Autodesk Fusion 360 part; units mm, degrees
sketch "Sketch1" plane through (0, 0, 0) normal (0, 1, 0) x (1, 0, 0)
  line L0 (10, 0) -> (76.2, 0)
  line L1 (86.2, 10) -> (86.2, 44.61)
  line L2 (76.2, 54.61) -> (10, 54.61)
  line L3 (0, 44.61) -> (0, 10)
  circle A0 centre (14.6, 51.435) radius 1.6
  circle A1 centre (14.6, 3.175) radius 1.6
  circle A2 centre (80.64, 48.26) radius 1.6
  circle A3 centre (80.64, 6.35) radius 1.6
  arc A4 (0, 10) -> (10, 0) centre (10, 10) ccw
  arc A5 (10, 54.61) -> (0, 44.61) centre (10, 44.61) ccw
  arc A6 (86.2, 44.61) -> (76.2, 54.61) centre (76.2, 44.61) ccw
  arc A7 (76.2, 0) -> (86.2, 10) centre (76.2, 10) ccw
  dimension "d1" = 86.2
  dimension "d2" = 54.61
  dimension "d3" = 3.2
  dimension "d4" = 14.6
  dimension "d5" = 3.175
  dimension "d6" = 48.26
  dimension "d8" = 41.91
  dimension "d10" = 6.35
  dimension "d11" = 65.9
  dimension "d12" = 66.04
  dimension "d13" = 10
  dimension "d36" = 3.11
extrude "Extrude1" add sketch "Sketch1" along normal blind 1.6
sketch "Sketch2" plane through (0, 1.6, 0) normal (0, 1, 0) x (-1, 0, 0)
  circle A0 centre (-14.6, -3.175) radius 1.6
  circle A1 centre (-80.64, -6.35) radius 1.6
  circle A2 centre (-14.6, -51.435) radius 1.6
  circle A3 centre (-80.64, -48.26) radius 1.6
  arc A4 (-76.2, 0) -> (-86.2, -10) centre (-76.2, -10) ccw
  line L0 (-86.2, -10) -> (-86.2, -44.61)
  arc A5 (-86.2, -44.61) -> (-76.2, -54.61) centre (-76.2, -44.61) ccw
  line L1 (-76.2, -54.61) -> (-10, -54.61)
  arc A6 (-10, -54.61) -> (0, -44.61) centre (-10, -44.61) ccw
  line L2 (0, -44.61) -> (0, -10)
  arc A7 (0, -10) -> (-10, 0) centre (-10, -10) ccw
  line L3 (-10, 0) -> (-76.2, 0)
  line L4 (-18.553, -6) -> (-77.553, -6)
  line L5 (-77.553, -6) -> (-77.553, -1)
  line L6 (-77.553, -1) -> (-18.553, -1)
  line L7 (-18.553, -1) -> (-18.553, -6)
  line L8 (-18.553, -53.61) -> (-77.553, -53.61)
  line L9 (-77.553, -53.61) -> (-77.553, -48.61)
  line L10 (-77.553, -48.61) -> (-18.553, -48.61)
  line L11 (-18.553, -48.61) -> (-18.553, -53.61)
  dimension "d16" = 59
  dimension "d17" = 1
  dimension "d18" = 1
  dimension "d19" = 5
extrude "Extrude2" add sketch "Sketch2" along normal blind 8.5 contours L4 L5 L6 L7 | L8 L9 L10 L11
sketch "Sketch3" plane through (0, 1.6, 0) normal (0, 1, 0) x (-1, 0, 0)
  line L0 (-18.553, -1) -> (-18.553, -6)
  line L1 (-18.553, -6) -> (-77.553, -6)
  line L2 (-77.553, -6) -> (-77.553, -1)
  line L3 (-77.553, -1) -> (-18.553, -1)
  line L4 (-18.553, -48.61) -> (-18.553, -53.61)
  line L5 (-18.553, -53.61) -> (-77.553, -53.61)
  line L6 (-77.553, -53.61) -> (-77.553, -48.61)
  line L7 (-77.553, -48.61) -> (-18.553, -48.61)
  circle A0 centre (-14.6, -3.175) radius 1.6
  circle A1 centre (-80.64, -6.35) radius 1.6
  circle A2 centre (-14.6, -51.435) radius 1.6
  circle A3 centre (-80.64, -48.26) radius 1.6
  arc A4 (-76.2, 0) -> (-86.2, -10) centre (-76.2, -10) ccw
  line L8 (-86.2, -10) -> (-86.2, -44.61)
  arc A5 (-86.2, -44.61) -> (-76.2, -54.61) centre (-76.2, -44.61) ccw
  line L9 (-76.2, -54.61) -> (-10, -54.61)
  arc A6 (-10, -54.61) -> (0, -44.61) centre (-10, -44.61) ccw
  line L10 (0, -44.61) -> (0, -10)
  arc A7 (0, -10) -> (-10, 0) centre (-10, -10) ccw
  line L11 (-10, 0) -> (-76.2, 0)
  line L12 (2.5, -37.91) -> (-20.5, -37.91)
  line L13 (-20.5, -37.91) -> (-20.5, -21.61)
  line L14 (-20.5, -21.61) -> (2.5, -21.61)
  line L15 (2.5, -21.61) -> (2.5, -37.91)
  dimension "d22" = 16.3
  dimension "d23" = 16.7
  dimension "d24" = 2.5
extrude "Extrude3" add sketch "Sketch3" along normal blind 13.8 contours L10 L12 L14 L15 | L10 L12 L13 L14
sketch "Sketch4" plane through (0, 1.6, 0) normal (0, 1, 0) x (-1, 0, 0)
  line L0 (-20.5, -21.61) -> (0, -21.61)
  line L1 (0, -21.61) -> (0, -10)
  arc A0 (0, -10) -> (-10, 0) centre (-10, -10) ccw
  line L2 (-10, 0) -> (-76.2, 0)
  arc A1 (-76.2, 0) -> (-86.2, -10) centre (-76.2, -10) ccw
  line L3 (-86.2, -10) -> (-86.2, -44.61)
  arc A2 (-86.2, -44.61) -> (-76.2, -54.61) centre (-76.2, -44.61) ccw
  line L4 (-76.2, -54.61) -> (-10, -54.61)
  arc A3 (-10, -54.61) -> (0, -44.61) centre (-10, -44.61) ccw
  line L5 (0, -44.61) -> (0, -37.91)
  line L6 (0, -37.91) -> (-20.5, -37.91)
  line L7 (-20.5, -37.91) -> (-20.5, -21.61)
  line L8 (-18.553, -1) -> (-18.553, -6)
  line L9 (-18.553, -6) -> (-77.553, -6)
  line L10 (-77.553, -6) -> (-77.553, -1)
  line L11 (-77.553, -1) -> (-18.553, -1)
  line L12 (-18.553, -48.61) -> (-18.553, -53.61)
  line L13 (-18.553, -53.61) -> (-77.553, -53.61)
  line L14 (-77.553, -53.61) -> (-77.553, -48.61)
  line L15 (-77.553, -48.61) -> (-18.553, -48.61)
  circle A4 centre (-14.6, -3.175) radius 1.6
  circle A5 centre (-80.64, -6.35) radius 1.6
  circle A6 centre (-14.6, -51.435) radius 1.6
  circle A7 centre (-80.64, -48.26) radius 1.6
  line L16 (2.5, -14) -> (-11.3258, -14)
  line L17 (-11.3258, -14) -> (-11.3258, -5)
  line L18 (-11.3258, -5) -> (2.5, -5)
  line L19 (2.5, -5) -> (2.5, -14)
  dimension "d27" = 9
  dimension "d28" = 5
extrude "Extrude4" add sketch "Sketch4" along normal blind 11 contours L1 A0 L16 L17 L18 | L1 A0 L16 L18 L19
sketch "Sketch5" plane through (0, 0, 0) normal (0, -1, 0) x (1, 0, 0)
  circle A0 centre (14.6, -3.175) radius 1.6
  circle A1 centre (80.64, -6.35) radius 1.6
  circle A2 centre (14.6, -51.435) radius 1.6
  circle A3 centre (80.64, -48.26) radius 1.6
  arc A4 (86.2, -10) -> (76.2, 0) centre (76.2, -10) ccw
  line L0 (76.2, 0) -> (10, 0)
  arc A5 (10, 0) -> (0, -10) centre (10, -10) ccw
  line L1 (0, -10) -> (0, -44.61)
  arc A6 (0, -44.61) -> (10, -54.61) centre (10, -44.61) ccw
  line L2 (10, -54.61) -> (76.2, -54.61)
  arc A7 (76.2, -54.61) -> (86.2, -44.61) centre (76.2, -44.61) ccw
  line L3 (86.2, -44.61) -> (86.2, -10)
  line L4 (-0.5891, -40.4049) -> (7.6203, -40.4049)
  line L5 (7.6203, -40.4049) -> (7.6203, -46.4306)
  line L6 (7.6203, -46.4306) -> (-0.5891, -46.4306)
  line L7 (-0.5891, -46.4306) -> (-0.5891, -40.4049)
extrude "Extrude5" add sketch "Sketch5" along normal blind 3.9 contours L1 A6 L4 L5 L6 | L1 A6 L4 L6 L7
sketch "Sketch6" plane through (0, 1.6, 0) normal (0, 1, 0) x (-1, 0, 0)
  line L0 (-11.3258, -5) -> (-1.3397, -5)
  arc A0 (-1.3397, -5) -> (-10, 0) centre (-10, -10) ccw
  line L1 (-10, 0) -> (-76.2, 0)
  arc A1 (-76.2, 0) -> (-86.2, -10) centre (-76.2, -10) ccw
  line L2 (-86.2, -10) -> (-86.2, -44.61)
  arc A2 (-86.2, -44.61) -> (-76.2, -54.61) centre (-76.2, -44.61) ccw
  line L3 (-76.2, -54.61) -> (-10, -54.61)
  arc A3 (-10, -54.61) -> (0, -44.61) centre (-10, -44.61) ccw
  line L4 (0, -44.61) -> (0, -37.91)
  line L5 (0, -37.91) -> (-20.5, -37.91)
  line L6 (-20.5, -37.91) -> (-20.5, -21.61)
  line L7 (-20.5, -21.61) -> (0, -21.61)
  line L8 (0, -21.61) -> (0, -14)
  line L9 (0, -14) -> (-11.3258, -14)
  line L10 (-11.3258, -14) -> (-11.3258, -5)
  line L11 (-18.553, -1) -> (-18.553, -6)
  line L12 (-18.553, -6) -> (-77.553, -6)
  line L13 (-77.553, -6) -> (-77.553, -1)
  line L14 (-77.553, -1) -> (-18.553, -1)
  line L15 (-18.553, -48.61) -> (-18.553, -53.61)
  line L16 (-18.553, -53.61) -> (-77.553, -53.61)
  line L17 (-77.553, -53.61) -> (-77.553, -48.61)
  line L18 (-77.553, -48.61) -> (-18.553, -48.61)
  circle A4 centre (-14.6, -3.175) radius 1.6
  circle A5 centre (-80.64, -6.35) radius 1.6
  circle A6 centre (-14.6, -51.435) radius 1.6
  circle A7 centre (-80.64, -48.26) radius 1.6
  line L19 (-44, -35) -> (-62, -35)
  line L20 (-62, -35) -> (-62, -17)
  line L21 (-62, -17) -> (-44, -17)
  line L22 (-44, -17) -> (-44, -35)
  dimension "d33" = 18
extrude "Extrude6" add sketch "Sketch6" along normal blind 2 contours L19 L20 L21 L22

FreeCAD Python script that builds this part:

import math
import FreeCAD as App
import Part
import Sketcher
from FreeCAD import Vector
Q = App.Units.Quantity


def add_polygon(sketch, points):
    """Adds a closed chain of lines whose ends are joined by coincident constraints."""
    first, n = sketch.GeometryCount, len(points)
    for a, b in zip(points, points[1:] + points[:1]):
        sketch.addGeometry(Part.LineSegment(App.Vector(*a, 0), App.Vector(*b, 0)), False)
    for i in range(n):
        sketch.addConstraint(Sketcher.Constraint("Coincident", first + i, 2, first + (i + 1) % n, 1))

doc = App.newDocument("Part")
body = doc.addObject("PartDesign::Body", "Body")

# Sketch on XZ plane
sketch1 = body.newObject("Sketcher::SketchObject", "Sketch")
sketch1.AttachmentSupport = (doc.getObject("XZ_Plane"), [""])
sketch1.MapMode = "FlatFace"
sketch1.addGeometry([
    Part.ArcOfCircle(Part.Circle(Vector(10, -10, 0), Vector(0, 0, 1), 10), math.radians(90), math.radians(180)),  # 0
    Part.LineSegment(Vector(10, 0, 0), Vector(76.2, 0, 0)),  # 1
    Part.ArcOfCircle(Part.Circle(Vector(76.2, -10, 0), Vector(0, 0, 1), 10), math.radians(0), math.radians(90)),  # 2
    Part.LineSegment(Vector(86.2, -10, 0), Vector(86.2, -44.6, 0)),  # 3
    Part.ArcOfCircle(Part.Circle(Vector(76.2, -44.6, 0), Vector(0, 0, 1), 10), math.radians(-90), math.radians(0)),  # 4
    Part.LineSegment(Vector(76.2, -54.6, 0), Vector(10, -54.6, 0)),  # 5
    Part.ArcOfCircle(Part.Circle(Vector(10, -44.6, 0), Vector(0, 0, 1), 10), math.radians(180), math.radians(270)),  # 6
    Part.LineSegment(Vector(0, -44.6, 0), Vector(0, -10, 0)),  # 7
    Part.Circle(Vector(14.6, -3.2, 0), Vector(0, 0, 1), 1.6),  # 8
    Part.Circle(Vector(80.6, -6.3, 0), Vector(0, 0, 1), 1.6),  # 9
    Part.Circle(Vector(14.6, -51.4, 0), Vector(0, 0, 1), 1.6),  # 10
    Part.Circle(Vector(80.6, -48.3, 0), Vector(0, 0, 1), 1.6),  # 11
], False)
sketch1.addConstraint([
    Sketcher.Constraint("Tangent", 0, 1, 1, 1),
    Sketcher.Constraint("Tangent", 1, 2, 2, 2),
    Sketcher.Constraint("Tangent", 2, 1, 3, 1),
    Sketcher.Constraint("Tangent", 3, 2, 4, 2),
    Sketcher.Constraint("Tangent", 4, 1, 5, 1),
    Sketcher.Constraint("Tangent", 5, 2, 6, 2),
    Sketcher.Constraint("Tangent", 6, 1, 7, 1),
    Sketcher.Constraint("Tangent", 7, 2, 0, 2),
    Sketcher.Constraint("Horizontal", 1),
    Sketcher.Constraint("Vertical", 3),
    Sketcher.Constraint("Horizontal", 5),
    Sketcher.Constraint("Vertical", 7),
    Sketcher.Constraint("Equal", 0, 2),
    Sketcher.Constraint("Equal", 2, 4),
    Sketcher.Constraint("Equal", 4, 6),
    Sketcher.Constraint("Equal", 8, 9),
    Sketcher.Constraint("Equal", 9, 10),
    Sketcher.Constraint("Equal", 10, 11),
    Sketcher.Constraint("PointOnObject", 0, 1, -1),
    Sketcher.Constraint("PointOnObject", 6, 1, -2),
    Sketcher.Constraint("Vertical", 8, 3, 10, 3),
    Sketcher.Constraint("Vertical", 9, 3, 11, 3),
    Sketcher.Constraint("Radius", 0, Q("10 mm")),
    Sketcher.Constraint("Diameter", 8, Q("3.2 mm")),
    Sketcher.Constraint("DistanceX", -1, 1, 8, 3, Q("14.6 mm")),
    Sketcher.Constraint("DistanceX", -1, 1, 2, 1, Q("86.2 mm")),
    Sketcher.Constraint("DistanceY", 9, 3, -1, 1, Q("6.35 mm")),
    Sketcher.Constraint("DistanceY", 11, 3, -1, 1, Q("48.26 mm")),
    Sketcher.Constraint("DistanceY", 4, 1, -1, 1, Q("54.61 mm")),
    Sketcher.Constraint("DistanceX", 8, 3, 9, 3, Q("66.04 mm")),
    Sketcher.Constraint("DistanceY", 10, 3, 8, 3, Q("48.26 mm")),
    Sketcher.Constraint("DistanceY", 8, 3, -1, 1, Q("3.175 mm")),
])
pad1 = body.newObject("PartDesign::Pad", "Pad")
pad1.Profile = sketch1
pad1.Length = 1.6
pad1.Reversed = True

# Sketch on XZ plane
sketch2 = body.newObject("Sketcher::SketchObject", "Sketch001")
sketch2.AttachmentSupport = (doc.getObject("XZ_Plane"), [""])
sketch2.MapMode = "FlatFace"
sketch2.AttachmentOffset = App.Placement(Vector(0, 0, -1.6), App.Rotation())
add_polygon(sketch2, [(78, -6), (19, -6), (19, -1), (78, -1)])  # lines 0-3
add_polygon(sketch2, [(78, -54), (19, -54), (19, -49), (78, -49)])  # lines 4-7
sketch2.addConstraint([
    Sketcher.Constraint("Horizontal", 0),
    Sketcher.Constraint("Vertical", 1),
    Sketcher.Constraint("Horizontal", 2),
    Sketcher.Constraint("Vertical", 3),
    Sketcher.Constraint("Horizontal", 4),
    Sketcher.Constraint("Vertical", 5),
    Sketcher.Constraint("Horizontal", 6),
    Sketcher.Constraint("Vertical", 7),
    Sketcher.Constraint("Vertical", 1, 2, 4, 2),
    Sketcher.Constraint("Vertical", 3, 2, 6, 2),
    Sketcher.Constraint("Equal", 3, 5),
    Sketcher.Constraint("DistanceX", 0, 2, 0, 1, Q("59 mm")),
    Sketcher.Constraint("DistanceY", 1, 1, 1, 2, Q("5 mm")),
    Sketcher.Constraint("DistanceY", 1, 2, -1, 1, Q("1 mm")),
    Sketcher.Constraint("DistanceY", 4, 2, -1, 1, Q("53.61 mm")),
    Sketcher.Constraint("DistanceX", -1, 1, 0, 2, Q("18.553 mm")),
])
pad2 = body.newObject("PartDesign::Pad", "Pad001")
pad2.Profile = sketch2
pad2.Length = 8.5
pad2.Reversed = True

# Sketch on XZ plane
sketch3 = body.newObject("Sketcher::SketchObject", "Sketch002")
sketch3.AttachmentSupport = (doc.getObject("XZ_Plane"), [""])
sketch3.MapMode = "FlatFace"
sketch3.AttachmentOffset = App.Placement(Vector(0, 0, -1.6), App.Rotation())
add_polygon(sketch3, [(-2, -22), (20, -22), (20, -38), (-2, -38)])  # lines 0-3
sketch3.addConstraint([
    Sketcher.Constraint("Horizontal", 0),
    Sketcher.Constraint("Vertical", 1),
    Sketcher.Constraint("Horizontal", 2),
    Sketcher.Constraint("Vertical", 3),
    Sketcher.Constraint("DistanceY", 1, 2, 1, 1, Q("16.3 mm")),
    Sketcher.Constraint("DistanceX", 2, 2, -1, 1, Q("2.5 mm")),
    Sketcher.Constraint("DistanceX", 0, 1, 0, 2, Q("23 mm")),
    Sketcher.Constraint("DistanceY", 0, 2, -1, 1, Q("21.61 mm")),
])
pad3 = body.newObject("PartDesign::Pad", "Pad002")
pad3.Profile = sketch3
pad3.Length = 13.8
pad3.Reversed = True

# Sketch on XZ plane
sketch4 = body.newObject("Sketcher::SketchObject", "Sketch003")
sketch4.AttachmentSupport = (doc.getObject("XZ_Plane"), [""])
sketch4.MapMode = "FlatFace"
sketch4.AttachmentOffset = App.Placement(Vector(0, 0, -1.6), App.Rotation())
add_polygon(sketch4, [(11, -14), (-2, -14), (-2, -5), (11, -5)])  # lines 0-3
sketch4.addConstraint([
    Sketcher.Constraint("Horizontal", 0),
    Sketcher.Constraint("Vertical", 1),
    Sketcher.Constraint("Horizontal", 2),
    Sketcher.Constraint("Vertical", 3),
    Sketcher.Constraint("DistanceY", 1, 1, 1, 2, Q("9 mm")),
    Sketcher.Constraint("DistanceY", 1, 2, -1, 1, Q("5 mm")),
    Sketcher.Constraint("DistanceX", 0, 2, -1, 1, Q("2.5 mm")),
    Sketcher.Constraint("DistanceX", 0, 2, 0, 1, Q("13.8258 mm")),
])
pad4 = body.newObject("PartDesign::Pad", "Pad003")
pad4.Profile = sketch4
pad4.Length = 11
pad4.Reversed = True

# Sketch on XZ plane
sketch5 = body.newObject("Sketcher::SketchObject", "Sketch004")
sketch5.AttachmentSupport = (doc.getObject("XZ_Plane"), [""])
sketch5.MapMode = "FlatFace"
add_polygon(sketch5, [(8, -40), (-1, -40), (-1, -46), (8, -46)])  # lines 0-3
sketch5.addConstraint([
    Sketcher.Constraint("Horizontal", 0),
    Sketcher.Constraint("Vertical", 1),
    Sketcher.Constraint("Horizontal", 2),
    Sketcher.Constraint("Vertical", 3),
    Sketcher.Constraint("DistanceX", 0, 2, 0, 1, Q("8.2094 mm")),
    Sketcher.Constraint("DistanceY", 1, 2, 1, 1, Q("6.0257 mm")),
    Sketcher.Constraint("DistanceX", 0, 2, -1, 1, Q("0.589 mm")),
    Sketcher.Constraint("DistanceY", 0, 2, -1, 1, Q("40.405 mm")),
])
pad5 = body.newObject("PartDesign::Pad", "Pad004")
pad5.Profile = sketch5
pad5.Length = 3.9

# Sketch on XZ plane
sketch6 = body.newObject("Sketcher::SketchObject", "Sketch005")
sketch6.AttachmentSupport = (doc.getObject("XZ_Plane"), [""])
sketch6.MapMode = "FlatFace"
sketch6.AttachmentOffset = App.Placement(Vector(0, 0, -1.6), App.Rotation())
add_polygon(sketch6, [(62, -35), (44, -35), (44, -17), (62, -17)])  # lines 0-3
sketch6.addConstraint([
    Sketcher.Constraint("Horizontal", 0),
    Sketcher.Constraint("Vertical", 1),
    Sketcher.Constraint("Horizontal", 2),
    Sketcher.Constraint("Vertical", 3),
    Sketcher.Constraint("Equal", 2, 1),
    Sketcher.Constraint("DistanceX", 0, 2, 0, 1, Q("18 mm")),
    Sketcher.Constraint("DistanceX", -1, 1, 0, 2, Q("44 mm")),
    Sketcher.Constraint("DistanceY", 0, 2, -1, 1, Q("35 mm")),
])
pad6 = body.newObject("PartDesign::Pad", "Pad005")
pad6.Profile = sketch6
pad6.Length = 2
pad6.Reversed = True

doc.recompute()
